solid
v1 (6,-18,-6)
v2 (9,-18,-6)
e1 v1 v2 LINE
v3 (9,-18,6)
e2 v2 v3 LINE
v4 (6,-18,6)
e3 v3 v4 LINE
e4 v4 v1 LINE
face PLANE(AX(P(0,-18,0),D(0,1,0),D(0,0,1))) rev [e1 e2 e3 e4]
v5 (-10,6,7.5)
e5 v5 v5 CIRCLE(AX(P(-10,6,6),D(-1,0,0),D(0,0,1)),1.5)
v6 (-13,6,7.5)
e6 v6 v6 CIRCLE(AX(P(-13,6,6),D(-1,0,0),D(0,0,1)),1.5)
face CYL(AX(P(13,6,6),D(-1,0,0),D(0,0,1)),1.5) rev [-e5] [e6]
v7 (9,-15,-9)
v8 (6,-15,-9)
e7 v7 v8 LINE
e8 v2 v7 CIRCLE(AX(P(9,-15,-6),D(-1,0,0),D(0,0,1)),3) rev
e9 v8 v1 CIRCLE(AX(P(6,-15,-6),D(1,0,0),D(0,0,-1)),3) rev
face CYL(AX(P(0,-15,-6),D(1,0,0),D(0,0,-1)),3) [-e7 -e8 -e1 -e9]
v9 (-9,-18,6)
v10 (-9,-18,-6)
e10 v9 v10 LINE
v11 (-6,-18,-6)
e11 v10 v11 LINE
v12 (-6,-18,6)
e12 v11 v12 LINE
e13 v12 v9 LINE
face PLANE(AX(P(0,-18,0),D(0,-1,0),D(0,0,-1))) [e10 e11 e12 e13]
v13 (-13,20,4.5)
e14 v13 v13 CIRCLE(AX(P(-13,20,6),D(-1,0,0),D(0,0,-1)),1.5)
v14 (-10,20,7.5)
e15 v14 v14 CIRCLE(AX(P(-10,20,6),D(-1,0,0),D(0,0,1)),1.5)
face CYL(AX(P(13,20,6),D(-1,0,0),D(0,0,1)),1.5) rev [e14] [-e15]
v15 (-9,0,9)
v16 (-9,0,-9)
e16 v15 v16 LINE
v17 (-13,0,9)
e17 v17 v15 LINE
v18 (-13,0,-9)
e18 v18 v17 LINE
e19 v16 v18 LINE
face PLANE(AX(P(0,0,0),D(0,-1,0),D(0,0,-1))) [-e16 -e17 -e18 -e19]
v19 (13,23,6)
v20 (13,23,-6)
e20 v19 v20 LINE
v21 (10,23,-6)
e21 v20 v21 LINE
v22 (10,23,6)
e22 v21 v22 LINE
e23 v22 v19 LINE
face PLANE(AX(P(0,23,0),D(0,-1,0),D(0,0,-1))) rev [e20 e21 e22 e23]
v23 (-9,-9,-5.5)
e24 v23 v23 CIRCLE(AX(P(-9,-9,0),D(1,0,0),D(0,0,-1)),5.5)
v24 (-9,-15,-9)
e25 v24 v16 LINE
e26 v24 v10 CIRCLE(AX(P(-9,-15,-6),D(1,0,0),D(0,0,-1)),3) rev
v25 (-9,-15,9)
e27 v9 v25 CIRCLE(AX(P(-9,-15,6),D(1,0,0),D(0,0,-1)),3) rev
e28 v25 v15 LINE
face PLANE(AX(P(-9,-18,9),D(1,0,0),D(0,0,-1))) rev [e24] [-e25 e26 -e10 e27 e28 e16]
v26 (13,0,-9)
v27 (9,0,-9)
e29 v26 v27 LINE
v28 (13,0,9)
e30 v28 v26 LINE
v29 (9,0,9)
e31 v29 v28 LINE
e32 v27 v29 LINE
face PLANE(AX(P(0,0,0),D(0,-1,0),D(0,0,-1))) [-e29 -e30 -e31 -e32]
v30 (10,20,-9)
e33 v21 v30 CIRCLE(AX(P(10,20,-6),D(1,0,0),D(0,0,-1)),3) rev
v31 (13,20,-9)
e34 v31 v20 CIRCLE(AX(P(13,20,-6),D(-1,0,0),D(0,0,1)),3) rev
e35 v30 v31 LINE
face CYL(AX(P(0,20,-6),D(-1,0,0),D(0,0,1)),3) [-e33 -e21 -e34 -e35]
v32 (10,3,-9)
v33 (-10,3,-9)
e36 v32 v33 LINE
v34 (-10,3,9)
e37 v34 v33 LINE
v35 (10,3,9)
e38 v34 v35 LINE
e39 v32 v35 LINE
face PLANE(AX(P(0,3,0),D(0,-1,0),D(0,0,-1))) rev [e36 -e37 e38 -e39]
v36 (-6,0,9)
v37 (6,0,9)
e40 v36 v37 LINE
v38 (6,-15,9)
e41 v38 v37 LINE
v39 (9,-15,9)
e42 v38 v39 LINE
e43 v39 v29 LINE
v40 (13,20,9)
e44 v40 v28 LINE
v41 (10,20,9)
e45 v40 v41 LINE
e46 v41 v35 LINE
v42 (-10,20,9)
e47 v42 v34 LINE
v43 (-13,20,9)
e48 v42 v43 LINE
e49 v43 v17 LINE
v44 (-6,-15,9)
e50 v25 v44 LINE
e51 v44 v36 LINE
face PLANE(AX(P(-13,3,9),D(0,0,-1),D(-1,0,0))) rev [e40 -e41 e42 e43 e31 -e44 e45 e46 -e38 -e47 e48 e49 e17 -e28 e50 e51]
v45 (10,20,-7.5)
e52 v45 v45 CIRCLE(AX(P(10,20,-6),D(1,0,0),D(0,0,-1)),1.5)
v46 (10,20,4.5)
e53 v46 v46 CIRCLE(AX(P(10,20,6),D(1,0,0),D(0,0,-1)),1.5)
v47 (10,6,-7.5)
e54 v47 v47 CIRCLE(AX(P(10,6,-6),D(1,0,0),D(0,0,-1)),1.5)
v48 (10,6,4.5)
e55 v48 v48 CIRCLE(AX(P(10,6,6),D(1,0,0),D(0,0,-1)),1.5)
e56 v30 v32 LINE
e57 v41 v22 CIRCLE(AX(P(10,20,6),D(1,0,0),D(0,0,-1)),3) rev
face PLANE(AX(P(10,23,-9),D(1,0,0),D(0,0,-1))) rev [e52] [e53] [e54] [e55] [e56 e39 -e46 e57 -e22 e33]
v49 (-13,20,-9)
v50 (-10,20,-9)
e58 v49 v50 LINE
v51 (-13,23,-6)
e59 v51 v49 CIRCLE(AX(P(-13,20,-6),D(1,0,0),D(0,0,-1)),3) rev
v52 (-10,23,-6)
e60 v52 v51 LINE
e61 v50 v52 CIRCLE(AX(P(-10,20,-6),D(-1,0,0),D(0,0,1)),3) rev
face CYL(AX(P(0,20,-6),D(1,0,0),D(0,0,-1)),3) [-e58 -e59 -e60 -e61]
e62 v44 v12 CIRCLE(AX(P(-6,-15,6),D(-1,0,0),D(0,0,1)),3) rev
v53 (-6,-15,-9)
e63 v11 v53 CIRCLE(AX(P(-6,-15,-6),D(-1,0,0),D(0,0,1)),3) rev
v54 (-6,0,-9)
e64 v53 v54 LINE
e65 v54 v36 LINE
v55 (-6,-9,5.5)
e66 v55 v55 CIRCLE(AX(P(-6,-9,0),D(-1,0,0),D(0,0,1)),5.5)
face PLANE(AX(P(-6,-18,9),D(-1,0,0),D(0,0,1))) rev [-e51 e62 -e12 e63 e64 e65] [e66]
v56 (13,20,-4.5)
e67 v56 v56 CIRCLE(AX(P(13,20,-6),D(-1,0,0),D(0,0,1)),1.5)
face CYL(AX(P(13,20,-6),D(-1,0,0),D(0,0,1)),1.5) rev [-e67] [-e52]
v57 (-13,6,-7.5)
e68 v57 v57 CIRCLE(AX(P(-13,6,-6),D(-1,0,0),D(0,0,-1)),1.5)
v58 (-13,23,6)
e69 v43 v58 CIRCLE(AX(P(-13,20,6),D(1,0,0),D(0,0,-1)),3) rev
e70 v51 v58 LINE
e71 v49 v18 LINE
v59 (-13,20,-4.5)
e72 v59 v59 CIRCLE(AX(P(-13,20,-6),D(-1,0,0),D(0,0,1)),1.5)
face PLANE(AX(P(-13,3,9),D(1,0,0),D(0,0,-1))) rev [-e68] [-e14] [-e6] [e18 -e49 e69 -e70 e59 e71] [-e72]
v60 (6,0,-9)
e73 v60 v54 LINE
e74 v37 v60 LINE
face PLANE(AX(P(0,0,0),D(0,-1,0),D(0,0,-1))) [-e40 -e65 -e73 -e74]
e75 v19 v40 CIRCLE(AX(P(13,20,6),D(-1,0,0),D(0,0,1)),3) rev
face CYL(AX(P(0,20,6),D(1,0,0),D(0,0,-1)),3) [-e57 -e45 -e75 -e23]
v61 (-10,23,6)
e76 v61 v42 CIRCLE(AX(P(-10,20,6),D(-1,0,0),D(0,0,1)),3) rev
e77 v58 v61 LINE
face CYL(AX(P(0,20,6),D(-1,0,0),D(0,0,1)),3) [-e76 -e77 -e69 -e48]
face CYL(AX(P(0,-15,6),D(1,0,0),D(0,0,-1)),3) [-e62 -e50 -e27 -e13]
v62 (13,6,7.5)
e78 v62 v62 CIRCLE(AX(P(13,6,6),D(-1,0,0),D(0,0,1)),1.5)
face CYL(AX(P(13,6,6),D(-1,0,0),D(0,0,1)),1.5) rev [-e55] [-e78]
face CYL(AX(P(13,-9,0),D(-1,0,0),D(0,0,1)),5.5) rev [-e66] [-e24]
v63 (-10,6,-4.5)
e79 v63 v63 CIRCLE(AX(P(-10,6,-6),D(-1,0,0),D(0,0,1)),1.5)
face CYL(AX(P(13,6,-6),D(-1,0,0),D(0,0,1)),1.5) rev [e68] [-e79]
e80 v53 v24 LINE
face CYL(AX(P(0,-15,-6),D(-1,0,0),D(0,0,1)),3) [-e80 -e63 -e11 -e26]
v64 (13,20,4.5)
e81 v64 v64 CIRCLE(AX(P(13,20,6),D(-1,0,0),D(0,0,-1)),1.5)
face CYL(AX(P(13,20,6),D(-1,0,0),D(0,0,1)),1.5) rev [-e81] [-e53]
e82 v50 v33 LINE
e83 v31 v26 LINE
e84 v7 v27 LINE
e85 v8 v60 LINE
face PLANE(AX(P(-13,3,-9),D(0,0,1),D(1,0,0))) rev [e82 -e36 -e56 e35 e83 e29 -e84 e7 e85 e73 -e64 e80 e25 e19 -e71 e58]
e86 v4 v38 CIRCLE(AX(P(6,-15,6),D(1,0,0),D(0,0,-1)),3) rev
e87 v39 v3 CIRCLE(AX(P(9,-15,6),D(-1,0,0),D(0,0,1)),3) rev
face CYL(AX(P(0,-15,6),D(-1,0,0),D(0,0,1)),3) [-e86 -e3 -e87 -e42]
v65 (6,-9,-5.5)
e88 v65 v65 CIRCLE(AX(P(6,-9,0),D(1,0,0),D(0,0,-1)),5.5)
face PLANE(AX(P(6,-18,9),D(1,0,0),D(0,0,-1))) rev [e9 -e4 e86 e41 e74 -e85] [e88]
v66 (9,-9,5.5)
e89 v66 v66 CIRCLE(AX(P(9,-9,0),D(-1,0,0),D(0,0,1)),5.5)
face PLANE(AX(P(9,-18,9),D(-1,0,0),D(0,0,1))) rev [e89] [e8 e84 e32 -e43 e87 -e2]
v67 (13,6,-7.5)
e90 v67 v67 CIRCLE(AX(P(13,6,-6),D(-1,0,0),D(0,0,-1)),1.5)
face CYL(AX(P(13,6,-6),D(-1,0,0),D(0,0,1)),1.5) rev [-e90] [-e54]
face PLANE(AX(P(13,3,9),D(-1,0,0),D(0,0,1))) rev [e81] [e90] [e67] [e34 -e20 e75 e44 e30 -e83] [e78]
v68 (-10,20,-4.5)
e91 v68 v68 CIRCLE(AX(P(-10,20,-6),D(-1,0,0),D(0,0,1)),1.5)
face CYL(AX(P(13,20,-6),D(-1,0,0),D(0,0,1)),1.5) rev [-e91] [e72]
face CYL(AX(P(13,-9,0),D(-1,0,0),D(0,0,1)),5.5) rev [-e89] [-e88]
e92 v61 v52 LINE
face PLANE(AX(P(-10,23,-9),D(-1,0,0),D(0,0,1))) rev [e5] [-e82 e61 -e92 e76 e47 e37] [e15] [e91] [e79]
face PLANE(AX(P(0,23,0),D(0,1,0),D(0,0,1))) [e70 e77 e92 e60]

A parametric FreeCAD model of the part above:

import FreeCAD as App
import Part
import Sketcher

V = App.Vector


def edges_at(feature, points):
    """Names of the edges that pass closest to the given points."""
    edges = feature.Shape.Edges
    near = lambda p: min(range(len(edges)), key=lambda i: edges[i].distToShape(Part.Vertex(*p))[0])
    return sorted({f"Edge{near(p) + 1}" for p in points})

doc = App.newDocument("Part")
body = doc.addObject("PartDesign::Body", "Body")

# Sketch on XZ plane
sketch1 = body.newObject("Sketcher::SketchObject", "Sketch")
sketch1.AttachmentSupport = (doc.getObject("XZ_Plane"), [""])
sketch1.MapMode = "FlatFace"
sketch1.addGeometry([
    Part.LineSegment(V(-13, -9, 0), V(-13, 9, 0)),
    Part.LineSegment(V(-13, 9, 0), V(13, 9, 0)),
    Part.LineSegment(V(13, 9, 0), V(13, -9, 0)),
    Part.LineSegment(V(13, -9, 0), V(-13, -9, 0)),
], False)
sketch1.addConstraint([
    Sketcher.Constraint("Coincident", 0, 2, 1, 1),
    Sketcher.Constraint("Coincident", 1, 2, 2, 1),
    Sketcher.Constraint("Coincident", 2, 2, 3, 1),
    Sketcher.Constraint("Coincident", 3, 2, 0, 1),
    Sketcher.Constraint("Vertical", 0),
    Sketcher.Constraint("Horizontal", 1),
    Sketcher.Constraint("Vertical", 2),
    Sketcher.Constraint("Horizontal", 3),
    Sketcher.Constraint("Symmetric", 0, 2, 2, 2, -1, 1),
    Sketcher.Constraint("DistanceX", 1, 1, 1, 2, 26.0),
    Sketcher.Constraint("DistanceY", 0, 1, 0, 2, 18.0),
])
pad1 = body.newObject("PartDesign::Pad", "Pad")
pad1.Profile = sketch1
pad1.Length = 3
pad1.Reversed = True

# Sketch on XZ plane
sketch2 = body.newObject("Sketcher::SketchObject", "Sketch001")
sketch2.AttachmentSupport = (doc.getObject("XZ_Plane"), [""])
sketch2.MapMode = "FlatFace"
sketch2.AttachmentOffset = App.Placement(V(0, 0, -3), App.Rotation())
sketch2.addGeometry([
    Part.LineSegment(V(-13, -9, 0), V(-13, 9, 0)),  # 0
    Part.LineSegment(V(-13, 9, 0), V(-10, 9, 0)),  # 1
    Part.LineSegment(V(-10, 9, 0), V(-10, -9, 0)),  # 2
    Part.LineSegment(V(-10, -9, 0), V(-13, -9, 0)),  # 3
    Part.LineSegment(V(10, -9, 0), V(10, 9, 0)),  # 4
    Part.LineSegment(V(10, 9, 0), V(13, 9, 0)),  # 5
    Part.LineSegment(V(13, 9, 0), V(13, -9, 0)),  # 6
    Part.LineSegment(V(13, -9, 0), V(10, -9, 0)),  # 7
], False)
sketch2.addConstraint([
    Sketcher.Constraint("Coincident", 0, 2, 1, 1),
    Sketcher.Constraint("Coincident", 1, 2, 2, 1),
    Sketcher.Constraint("Coincident", 2, 2, 3, 1),
    Sketcher.Constraint("Coincident", 3, 2, 0, 1),
    Sketcher.Constraint("Coincident", 4, 2, 5, 1),
    Sketcher.Constraint("Coincident", 5, 2, 6, 1),
    Sketcher.Constraint("Coincident", 6, 2, 7, 1),
    Sketcher.Constraint("Coincident", 7, 2, 4, 1),
    Sketcher.Constraint("Vertical", 0),
    Sketcher.Constraint("Horizontal", 1),
    Sketcher.Constraint("Vertical", 2),
    Sketcher.Constraint("Horizontal", 3),
    Sketcher.Constraint("Vertical", 4),
    Sketcher.Constraint("Horizontal", 5),
    Sketcher.Constraint("Vertical", 6),
    Sketcher.Constraint("Horizontal", 7),
    Sketcher.Constraint("Symmetric", 2, 2, 4, 2, -1, 1),
    Sketcher.Constraint("Symmetric", 0, 2, 6, 2, -1, 1),
    Sketcher.Constraint("Horizontal", 1, 2, 4, 2),
    Sketcher.Constraint("DistanceX", 1, 1, 1, 2, 3.0),
    Sketcher.Constraint("DistanceY", 0, 1, 0, 2, 18.0),
    Sketcher.Constraint("DistanceX", 0, 2, -1, 1, 13.0),
])
pad2 = body.newObject("PartDesign::Pad", "Pad001")
pad2.Profile = sketch2
pad2.Length = 20
pad2.Reversed = True

# Sketch on XZ plane
sketch3 = body.newObject("Sketcher::SketchObject", "Sketch002")
sketch3.AttachmentSupport = (doc.getObject("XZ_Plane"), [""])
sketch3.MapMode = "FlatFace"
sketch3.addGeometry([
    Part.LineSegment(V(-9, 9, 0), V(-9, -9, 0)),  # 0
    Part.LineSegment(V(-9, -9, 0), V(-6, -9, 0)),  # 1
    Part.LineSegment(V(-6, -9, 0), V(-6, 9, 0)),  # 2
    Part.LineSegment(V(-6, 9, 0), V(-9, 9, 0)),  # 3
    Part.LineSegment(V(6, 9, 0), V(6, -9, 0)),  # 4
    Part.LineSegment(V(6, -9, 0), V(9, -9, 0)),  # 5
    Part.LineSegment(V(9, -9, 0), V(9, 9, 0)),  # 6
    Part.LineSegment(V(9, 9, 0), V(6, 9, 0)),  # 7
], False)
sketch3.addConstraint([
    Sketcher.Constraint("Coincident", 0, 2, 1, 1),
    Sketcher.Constraint("Coincident", 1, 2, 2, 1),
    Sketcher.Constraint("Coincident", 2, 2, 3, 1),
    Sketcher.Constraint("Coincident", 3, 2, 0, 1),
    Sketcher.Constraint("Coincident", 4, 2, 5, 1),
    Sketcher.Constraint("Coincident", 5, 2, 6, 1),
    Sketcher.Constraint("Coincident", 6, 2, 7, 1),
    Sketcher.Constraint("Coincident", 7, 2, 4, 1),
    Sketcher.Constraint("Vertical", 0),
    Sketcher.Constraint("Horizontal", 1),
    Sketcher.Constraint("Vertical", 2),
    Sketcher.Constraint("Horizontal", 3),
    Sketcher.Constraint("Vertical", 4),
    Sketcher.Constraint("Horizontal", 5),
    Sketcher.Constraint("Vertical", 6),
    Sketcher.Constraint("Horizontal", 7),
    Sketcher.Constraint("Symmetric", 2, 2, 4, 2, -1, 1),
    Sketcher.Constraint("Symmetric", 0, 2, 6, 2, -1, 1),
    Sketcher.Constraint("Horizontal", 1, 2, 4, 2),
    Sketcher.Constraint("DistanceX", 1, 1, 1, 2, 3.0),
    Sketcher.Constraint("DistanceY", 0, 2, 0, 1, 18.0),
    Sketcher.Constraint("DistanceX", 0, 2, -1, 1, 9.0),
])
pad3 = body.newObject("PartDesign::Pad", "Pad002")
pad3.Profile = sketch3
pad3.Length = 18

# Sketch on YZ plane
sketch4 = body.newObject("Sketcher::SketchObject", "Sketch003")
sketch4.AttachmentSupport = (doc.getObject("YZ_Plane"), [""])
sketch4.MapMode = "FlatFace"
sketch4.AttachmentOffset = App.Placement(V(0, 0, -13), App.Rotation())
sketch4.addGeometry([
    Part.Circle(V(20, -6, 0), V(0, 0, 1), 1.5),
    Part.Circle(V(20, 6, 0), V(0, 0, 1), 1.5),
    Part.Circle(V(6, 6, 0), V(0, 0, 1), 1.5),
    Part.Circle(V(6, -6, 0), V(0, 0, 1), 1.5),
], False)
sketch4.addConstraint([
    Sketcher.Constraint("Equal", 0, 1),
    Sketcher.Constraint("Equal", 1, 2),
    Sketcher.Constraint("Equal", 2, 3),
    Sketcher.Constraint("Symmetric", 0, 3, 1, 3, -1),
    Sketcher.Constraint("Symmetric", 2, 3, 3, 3, -1),
    Sketcher.Constraint("Horizontal", 1, 3, 2, 3),
    Sketcher.Constraint("Diameter", 0, 3.0),
    Sketcher.Constraint("DistanceX", -1, 1, 0, 3, 20.0),
    Sketcher.Constraint("DistanceY", 0, 3, -1, 1, 6.0),
    Sketcher.Constraint("DistanceX", -1, 1, 2, 3, 6.0),
])
pocket1 = body.newObject("PartDesign::Pocket", "Pocket")
pocket1.Profile = sketch4
pocket1.Type = "ThroughAll"
pocket1.Reversed = True
doc.recompute()

fillet = body.newObject("PartDesign::Fillet", "Fillet")
fillet.Base = (pocket1, edges_at(pocket1, [
    (-11.5, 23, 9),
    (-11.5, 23, -9),
    (11.5, 23, -9),
    (11.5, 23, 9),
]))
fillet.Radius = 3

# Sketch on YZ plane
sketch5 = body.newObject("Sketcher::SketchObject", "Sketch004")
sketch5.AttachmentSupport = (doc.getObject("YZ_Plane"), [""])
sketch5.MapMode = "FlatFace"
sketch5.AttachmentOffset = App.Placement(V(0, 0, -13), App.Rotation())
sketch5.addGeometry(Part.Circle(V(-9, 0, 0), V(0, 0, 1), 6), False)
sketch5.addConstraint([
    Sketcher.Constraint("PointOnObject", 0, 3, -1),
    Sketcher.Constraint("Diameter", 0, 11.0),
    Sketcher.Constraint("DistanceX", 0, 3, -1, 1, 9.0),
])
pocket2 = body.newObject("PartDesign::Pocket", "Pocket001")
pocket2.Profile = sketch5
pocket2.Type = "ThroughAll"
pocket2.Reversed = True
doc.recompute()

fillet2 = body.newObject("PartDesign::Fillet", "Fillet001")
fillet2.Base = (pocket2, edges_at(pocket2, [
    (-7.5, -18, -9),
    (-7.5, -18, 9),
    (7.5, -18, 9),
    (7.5, -18, -9),
]))
fillet2.Radius = 3

doc.recompute()
